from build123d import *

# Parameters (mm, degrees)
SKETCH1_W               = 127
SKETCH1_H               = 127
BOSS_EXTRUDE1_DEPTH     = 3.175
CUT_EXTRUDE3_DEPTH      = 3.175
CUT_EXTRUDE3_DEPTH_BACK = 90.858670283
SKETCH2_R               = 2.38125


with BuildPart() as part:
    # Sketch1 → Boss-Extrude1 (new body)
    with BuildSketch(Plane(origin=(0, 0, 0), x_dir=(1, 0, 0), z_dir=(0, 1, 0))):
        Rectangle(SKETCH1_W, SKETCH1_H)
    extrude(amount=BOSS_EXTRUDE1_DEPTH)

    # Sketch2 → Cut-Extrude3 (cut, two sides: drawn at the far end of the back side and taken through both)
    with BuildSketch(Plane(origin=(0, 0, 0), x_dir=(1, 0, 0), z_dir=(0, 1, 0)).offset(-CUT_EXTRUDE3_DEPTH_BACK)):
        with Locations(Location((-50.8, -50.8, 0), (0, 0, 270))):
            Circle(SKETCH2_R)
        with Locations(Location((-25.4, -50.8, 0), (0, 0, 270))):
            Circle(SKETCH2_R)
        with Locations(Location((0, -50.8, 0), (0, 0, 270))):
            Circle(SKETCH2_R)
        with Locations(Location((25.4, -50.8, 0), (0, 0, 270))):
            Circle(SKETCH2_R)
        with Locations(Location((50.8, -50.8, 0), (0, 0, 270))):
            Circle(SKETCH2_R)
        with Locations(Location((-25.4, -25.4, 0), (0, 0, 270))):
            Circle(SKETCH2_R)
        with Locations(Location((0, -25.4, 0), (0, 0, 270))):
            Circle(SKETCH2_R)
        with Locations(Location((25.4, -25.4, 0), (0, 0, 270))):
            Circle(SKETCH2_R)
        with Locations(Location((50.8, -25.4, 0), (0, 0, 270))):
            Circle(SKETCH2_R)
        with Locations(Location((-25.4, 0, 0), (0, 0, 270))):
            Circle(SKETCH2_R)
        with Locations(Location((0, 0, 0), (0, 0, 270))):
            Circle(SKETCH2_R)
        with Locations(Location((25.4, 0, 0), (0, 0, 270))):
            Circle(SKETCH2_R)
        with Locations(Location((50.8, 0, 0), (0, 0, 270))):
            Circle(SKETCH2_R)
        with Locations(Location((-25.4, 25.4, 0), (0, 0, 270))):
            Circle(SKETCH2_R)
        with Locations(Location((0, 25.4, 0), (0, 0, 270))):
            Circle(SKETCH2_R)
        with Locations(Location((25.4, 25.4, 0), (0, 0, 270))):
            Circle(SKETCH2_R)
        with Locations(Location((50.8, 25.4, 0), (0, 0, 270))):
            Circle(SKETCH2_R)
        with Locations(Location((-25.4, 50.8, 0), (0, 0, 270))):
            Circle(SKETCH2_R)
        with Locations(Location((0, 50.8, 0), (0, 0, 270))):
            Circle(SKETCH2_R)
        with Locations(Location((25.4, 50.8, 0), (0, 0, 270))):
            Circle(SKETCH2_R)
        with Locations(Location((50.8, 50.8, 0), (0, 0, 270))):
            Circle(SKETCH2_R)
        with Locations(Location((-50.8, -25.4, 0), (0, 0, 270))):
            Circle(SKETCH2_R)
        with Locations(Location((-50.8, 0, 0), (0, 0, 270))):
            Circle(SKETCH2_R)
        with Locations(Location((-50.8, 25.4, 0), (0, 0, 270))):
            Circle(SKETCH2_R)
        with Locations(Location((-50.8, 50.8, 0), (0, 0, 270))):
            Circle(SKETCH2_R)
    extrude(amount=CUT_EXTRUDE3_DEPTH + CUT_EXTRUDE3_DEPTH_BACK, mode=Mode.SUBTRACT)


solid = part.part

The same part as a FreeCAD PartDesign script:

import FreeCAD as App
import Part
import Sketcher
Q = App.Units.Quantity

doc = App.newDocument("Part")
body = doc.addObject("PartDesign::Body", "Body")

# Sketch on XZ plane
sketch1 = doc.addObject("Sketcher::SketchObject", "Sketch")
body.addObject(sketch1)
sketch1.AttachmentSupport = (doc.XZ_Plane, [""])
sketch1.MapMode = "FlatFace"
sketch1.addGeometry(Part.LineSegment(App.Vector(-63.5, -63.5, 0), App.Vector(-63.5, 63.5, 0)), False)
sketch1.addGeometry(Part.LineSegment(App.Vector(-63.5, 63.5, 0), App.Vector(63.5, 63.5, 0)), False)
sketch1.addGeometry(Part.LineSegment(App.Vector(63.5, 63.5, 0), App.Vector(63.5, -63.5, 0)), False)
sketch1.addGeometry(Part.LineSegment(App.Vector(63.5, -63.5, 0), App.Vector(-63.5, -63.5, 0)), False)
sketch1.addConstraint(Sketcher.Constraint("Coincident", 0, 2, 1, 1))
sketch1.addConstraint(Sketcher.Constraint("Coincident", 1, 2, 2, 1))
sketch1.addConstraint(Sketcher.Constraint("Coincident", 2, 2, 3, 1))
sketch1.addConstraint(Sketcher.Constraint("Coincident", 3, 2, 0, 1))
sketch1.addConstraint(Sketcher.Constraint("Vertical", 0))
sketch1.addConstraint(Sketcher.Constraint("Horizontal", 1))
sketch1.addConstraint(Sketcher.Constraint("Vertical", 2))
sketch1.addConstraint(Sketcher.Constraint("Horizontal", 3))
sketch1.addConstraint(Sketcher.Constraint("Symmetric", 0, 2, 2, 2, -1, 1))
sketch1.addConstraint(Sketcher.Constraint("Equal", 3, 0))
sketch1.addConstraint(Sketcher.Constraint("DistanceX", 1, 1, 1, 2, Q("5 in")))
pad1 = doc.addObject("PartDesign::Pad", "Pad")
body.addObject(pad1)
pad1.Profile = sketch1
pad1.Length = Q("0.125 in")
pad1.Reversed = True

# Sketch on XZ plane
sketch2 = doc.addObject("Sketcher::SketchObject", "Sketch001")
body.addObject(sketch2)
sketch2.AttachmentSupport = (doc.XZ_Plane, [""])
sketch2.MapMode = "FlatFace"
sketch2.addGeometry(Part.Circle(App.Vector(-50.8, 50.8, 0), App.Vector(0, 0, 1), 2.38125), False)
sketch2.addGeometry(Part.Circle(App.Vector(-25.4, 50.8, 0), App.Vector(0, 0, 1), 2.38125), False)
sketch2.addGeometry(Part.Circle(App.Vector(0, 50.8, 0), App.Vector(0, 0, 1), 2.38125), False)
sketch2.addGeometry(Part.Circle(App.Vector(25.4, 50.8, 0), App.Vector(0, 0, 1), 2.38125), False)
sketch2.addGeometry(Part.Circle(App.Vector(50.8, 50.8, 0), App.Vector(0, 0, 1), 2.38125), False)
sketch2.addGeometry(Part.Circle(App.Vector(-25.4, 25.4, 0), App.Vector(0, 0, 1), 2.38125), False)
sketch2.addGeometry(Part.Circle(App.Vector(0, 25.4, 0), App.Vector(0, 0, 1), 2.38125), False)
sketch2.addGeometry(Part.Circle(App.Vector(25.4, 25.4, 0), App.Vector(0, 0, 1), 2.38125), False)
sketch2.addGeometry(Part.Circle(App.Vector(50.8, 25.4, 0), App.Vector(0, 0, 1), 2.38125), False)
sketch2.addGeometry(Part.Circle(App.Vector(-25.4, 0, 0), App.Vector(0, 0, 1), 2.38125), False)
sketch2.addGeometry(Part.Circle(App.Vector(0, 0, 0), App.Vector(0, 0, 1), 2.38125), False)
sketch2.addGeometry(Part.Circle(App.Vector(25.4, 0, 0), App.Vector(0, 0, 1), 2.38125), False)
sketch2.addGeometry(Part.Circle(App.Vector(50.8, 0, 0), App.Vector(0, 0, 1), 2.38125), False)
sketch2.addGeometry(Part.Circle(App.Vector(-25.4, -25.4, 0), App.Vector(0, 0, 1), 2.38125), False)
sketch2.addGeometry(Part.Circle(App.Vector(0, -25.4, 0), App.Vector(0, 0, 1), 2.38125), False)
sketch2.addGeometry(Part.Circle(App.Vector(25.4, -25.4, 0), App.Vector(0, 0, 1), 2.38125), False)
sketch2.addGeometry(Part.Circle(App.Vector(50.8, -25.4, 0), App.Vector(0, 0, 1), 2.38125), False)
sketch2.addGeometry(Part.Circle(App.Vector(-25.4, -50.8, 0), App.Vector(0, 0, 1), 2.38125), False)
sketch2.addGeometry(Part.Circle(App.Vector(0, -50.8, 0), App.Vector(0, 0, 1), 2.38125), False)
sketch2.addGeometry(Part.Circle(App.Vector(25.4, -50.8, 0), App.Vector(0, 0, 1), 2.38125), False)
sketch2.addGeometry(Part.Circle(App.Vector(50.8, -50.8, 0), App.Vector(0, 0, 1), 2.38125), False)
sketch2.addGeometry(Part.Circle(App.Vector(-50.8, 25.4, 0), App.Vector(0, 0, 1), 2.38125), False)
sketch2.addGeometry(Part.Circle(App.Vector(-50.8, 0, 0), App.Vector(0, 0, 1), 2.38125), False)
sketch2.addGeometry(Part.Circle(App.Vector(-50.8, -25.4, 0), App.Vector(0, 0, 1), 2.38125), False)
sketch2.addGeometry(Part.Circle(App.Vector(-50.8, -50.8, 0), App.Vector(0, 0, 1), 2.38125), False)
sketch2.addConstraint(Sketcher.Constraint("Coincident", 10, 3, -1, 1))
sketch2.addConstraint(Sketcher.Constraint("Equal", 0, 1))
sketch2.addConstraint(Sketcher.Constraint("Equal", 1, 2))
sketch2.addConstraint(Sketcher.Constraint("Equal", 2, 3))
sketch2.addConstraint(Sketcher.Constraint("Equal", 3, 4))
sketch2.addConstraint(Sketcher.Constraint("Equal", 4, 5))
sketch2.addConstraint(Sketcher.Constraint("Equal", 5, 6))
sketch2.addConstraint(Sketcher.Constraint("Equal", 6, 7))
sketch2.addConstraint(Sketcher.Constraint("Equal", 7, 8))
sketch2.addConstraint(Sketcher.Constraint("Equal", 8, 9))
sketch2.addConstraint(Sketcher.Constraint("Equal", 9, 10))
sketch2.addConstraint(Sketcher.Constraint("Equal", 10, 11))
sketch2.addConstraint(Sketcher.Constraint("Equal", 11, 12))
sketch2.addConstraint(Sketcher.Constraint("Equal", 12, 13))
sketch2.addConstraint(Sketcher.Constraint("Equal", 13, 14))
sketch2.addConstraint(Sketcher.Constraint("Equal", 14, 15))
sketch2.addConstraint(Sketcher.Constraint("Equal", 15, 16))
sketch2.addConstraint(Sketcher.Constraint("Equal", 16, 17))
sketch2.addConstraint(Sketcher.Constraint("Equal", 17, 18))
sketch2.addConstraint(Sketcher.Constraint("Equal", 18, 19))
sketch2.addConstraint(Sketcher.Constraint("Equal", 19, 20))
sketch2.addConstraint(Sketcher.Constraint("Equal", 20, 21))
sketch2.addConstraint(Sketcher.Constraint("Equal", 21, 22))
sketch2.addConstraint(Sketcher.Constraint("Equal", 22, 23))
sketch2.addConstraint(Sketcher.Constraint("Equal", 23, 24))
sketch2.addConstraint(Sketcher.Constraint("Symmetric", 9, 3, 11, 3, -1, 1))
sketch2.addConstraint(Sketcher.Constraint("Symmetric", 7, 3, 13, 3, -1, 1))
sketch2.addConstraint(Sketcher.Constraint("Symmetric", 6, 3, 14, 3, -1, 1))
sketch2.addConstraint(Sketcher.Constraint("Symmetric", 5, 3, 15, 3, -1, 1))
sketch2.addConstraint(Sketcher.Constraint("Symmetric", 3, 3, 17, 3, -1, 1))
sketch2.addConstraint(Sketcher.Constraint("Symmetric", 2, 3, 18, 3, -1, 1))
sketch2.addConstraint(Sketcher.Constraint("Symmetric", 1, 3, 19, 3, -1, 1))
sketch2.addConstraint(Sketcher.Constraint("Symmetric", 0, 3, 20, 3, -1, 1))
sketch2.addConstraint(Sketcher.Constraint("Symmetric", 16, 3, 21, 3, -1, 1))
sketch2.addConstraint(Sketcher.Constraint("Symmetric", 12, 3, 22, 3, -1, 1))
sketch2.addConstraint(Sketcher.Constraint("Symmetric", 8, 3, 23, 3, -1, 1))
sketch2.addConstraint(Sketcher.Constraint("Symmetric", 4, 3, 24, 3, -1, 1))
sketch2.addConstraint(Sketcher.Constraint("Symmetric", 1, 3, 3, 3, -2))
sketch2.addConstraint(Sketcher.Constraint("Symmetric", 0, 3, 4, 3, -2))
sketch2.addConstraint(Sketcher.Constraint("Symmetric", 5, 3, 7, 3, -2))
sketch2.addConstraint(Sketcher.Constraint("Symmetric", 8, 3, 21, 3, -2))
sketch2.addConstraint(Sketcher.Constraint("PointOnObject", 2, 3, -2))
sketch2.addConstraint(Sketcher.Constraint("PointOnObject", 6, 3, -2))
sketch2.addConstraint(Sketcher.Constraint("PointOnObject", 9, 3, -1))
sketch2.addConstraint(Sketcher.Constraint("PointOnObject", 12, 3, -1))
sketch2.addConstraint(Sketcher.Constraint("Horizontal", 0, 3, 1, 3))
sketch2.addConstraint(Sketcher.Constraint("Horizontal", 1, 3, 2, 3))
sketch2.addConstraint(Sketcher.Constraint("Horizontal", 5, 3, 6, 3))
sketch2.addConstraint(Sketcher.Constraint("Horizontal", 7, 3, 8, 3))
sketch2.addConstraint(Sketcher.Constraint("Vertical", 1, 3, 5, 3))
sketch2.addConstraint(Sketcher.Constraint("Vertical", 4, 3, 8, 3))
sketch2.addConstraint(Sketcher.Constraint("Vertical", 5, 3, 9, 3))
sketch2.addConstraint(Sketcher.Constraint("Vertical", 8, 3, 12, 3))
sketch2.addConstraint(Sketcher.Constraint("Diameter", 0, Q("0.1875 in")))
sketch2.addConstraint(Sketcher.Constraint("DistanceX", 0, 3, -1, 1, Q("2 in")))
sketch2.addConstraint(Sketcher.Constraint("DistanceY", -1, 1, 0, 3, Q("2 in")))
sketch2.addConstraint(Sketcher.Constraint("DistanceX", 1, 3, -1, 1, Q("1 in")))
sketch2.addConstraint(Sketcher.Constraint("DistanceY", -1, 1, 5, 3, Q("1 in")))
pocket1 = doc.addObject("PartDesign::Pocket", "Pocket")
body.addObject(pocket1)
pocket1.Profile = sketch2
pocket1.Type = "ThroughAll"
pocket1.Midplane = True

doc.recompute()
